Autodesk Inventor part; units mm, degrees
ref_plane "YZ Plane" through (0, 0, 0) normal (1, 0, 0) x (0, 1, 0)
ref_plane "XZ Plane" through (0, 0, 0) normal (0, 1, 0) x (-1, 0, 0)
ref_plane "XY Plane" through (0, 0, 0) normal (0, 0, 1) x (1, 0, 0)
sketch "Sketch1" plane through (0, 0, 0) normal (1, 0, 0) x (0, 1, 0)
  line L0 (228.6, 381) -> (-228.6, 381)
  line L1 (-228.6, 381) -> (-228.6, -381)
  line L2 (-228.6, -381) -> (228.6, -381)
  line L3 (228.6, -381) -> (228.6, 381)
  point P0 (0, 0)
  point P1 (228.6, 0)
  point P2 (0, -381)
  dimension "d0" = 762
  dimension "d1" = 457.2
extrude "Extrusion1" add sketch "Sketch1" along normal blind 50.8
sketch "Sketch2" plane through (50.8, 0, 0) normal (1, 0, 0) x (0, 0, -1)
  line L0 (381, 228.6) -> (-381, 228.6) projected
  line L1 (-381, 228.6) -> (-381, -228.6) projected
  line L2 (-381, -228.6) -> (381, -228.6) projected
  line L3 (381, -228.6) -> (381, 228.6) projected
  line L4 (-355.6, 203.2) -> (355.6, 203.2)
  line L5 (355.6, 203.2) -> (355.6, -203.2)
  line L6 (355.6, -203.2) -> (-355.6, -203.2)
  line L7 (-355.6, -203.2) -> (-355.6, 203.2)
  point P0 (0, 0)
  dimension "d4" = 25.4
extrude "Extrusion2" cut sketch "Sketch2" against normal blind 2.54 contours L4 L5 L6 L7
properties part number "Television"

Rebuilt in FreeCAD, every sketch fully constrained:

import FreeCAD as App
import Part
import Sketcher

V = App.Vector
Q = App.Units.Quantity

doc = App.newDocument("Part")
body = doc.addObject("PartDesign::Body", "Body")

# Sketch on YZ plane
sketch1 = body.newObject("Sketcher::SketchObject", "Sketch")
sketch1.AttachmentSupport = (doc.getObject("YZ_Plane"), [""])
sketch1.MapMode = "FlatFace"
sketch1.addGeometry(Part.LineSegment(V(229, -381, 0), V(229, 381, 0)), False)
sketch1.addGeometry(Part.LineSegment(V(229, 381, 0), V(-229, 381, 0)), False)
sketch1.addGeometry(Part.LineSegment(V(-229, 381, 0), V(-229, -381, 0)), False)
sketch1.addGeometry(Part.LineSegment(V(-229, -381, 0), V(229, -381, 0)), False)
sketch1.addConstraint(Sketcher.Constraint("Coincident", 0, 2, 1, 1))
sketch1.addConstraint(Sketcher.Constraint("Coincident", 1, 2, 2, 1))
sketch1.addConstraint(Sketcher.Constraint("Coincident", 2, 2, 3, 1))
sketch1.addConstraint(Sketcher.Constraint("Coincident", 3, 2, 0, 1))
sketch1.addConstraint(Sketcher.Constraint("Vertical", 0))
sketch1.addConstraint(Sketcher.Constraint("Horizontal", 1))
sketch1.addConstraint(Sketcher.Constraint("Vertical", 2))
sketch1.addConstraint(Sketcher.Constraint("Horizontal", 3))
sketch1.addConstraint(Sketcher.Constraint("Symmetric", 0, 2, 2, 2, -1, 1))
sketch1.addConstraint(Sketcher.Constraint("DistanceX", 1, 2, 1, 1, Q("18 in")))
sketch1.addConstraint(Sketcher.Constraint("DistanceY", 0, 1, 0, 2, Q("30 in")))
pad1 = body.newObject("PartDesign::Pad", "Pad")
pad1.Profile = sketch1
pad1.Length = Q("2 in")

# Sketch on YZ plane
sketch2 = body.newObject("Sketcher::SketchObject", "Sketch001")
sketch2.AttachmentSupport = (doc.getObject("YZ_Plane"), [""])
sketch2.MapMode = "FlatFace"
sketch2.AttachmentOffset = App.Placement(V(0, 0, 2 * 25.4), App.Rotation())
sketch2.addGeometry(Part.LineSegment(V(203, -356, 0), V(203, 356, 0)), False)
sketch2.addGeometry(Part.LineSegment(V(203, 356, 0), V(-203, 356, 0)), False)
sketch2.addGeometry(Part.LineSegment(V(-203, 356, 0), V(-203, -356, 0)), False)
sketch2.addGeometry(Part.LineSegment(V(-203, -356, 0), V(203, -356, 0)), False)
sketch2.addConstraint(Sketcher.Constraint("Coincident", 0, 2, 1, 1))
sketch2.addConstraint(Sketcher.Constraint("Coincident", 1, 2, 2, 1))
sketch2.addConstraint(Sketcher.Constraint("Coincident", 2, 2, 3, 1))
sketch2.addConstraint(Sketcher.Constraint("Coincident", 3, 2, 0, 1))
sketch2.addConstraint(Sketcher.Constraint("Vertical", 0))
sketch2.addConstraint(Sketcher.Constraint("Horizontal", 1))
sketch2.addConstraint(Sketcher.Constraint("Vertical", 2))
sketch2.addConstraint(Sketcher.Constraint("Horizontal", 3))
sketch2.addConstraint(Sketcher.Constraint("Symmetric", 0, 2, 2, 2, -1, 1))
sketch2.addConstraint(Sketcher.Constraint("DistanceX", 1, 2, 1, 1, Q("16 in")))
sketch2.addConstraint(Sketcher.Constraint("DistanceY", 0, 1, 0, 2, Q("28 in")))
pocket1 = body.newObject("PartDesign::Pocket", "Pocket")
pocket1.Profile = sketch2
pocket1.Length = Q("0.1 in")

doc.recompute()
